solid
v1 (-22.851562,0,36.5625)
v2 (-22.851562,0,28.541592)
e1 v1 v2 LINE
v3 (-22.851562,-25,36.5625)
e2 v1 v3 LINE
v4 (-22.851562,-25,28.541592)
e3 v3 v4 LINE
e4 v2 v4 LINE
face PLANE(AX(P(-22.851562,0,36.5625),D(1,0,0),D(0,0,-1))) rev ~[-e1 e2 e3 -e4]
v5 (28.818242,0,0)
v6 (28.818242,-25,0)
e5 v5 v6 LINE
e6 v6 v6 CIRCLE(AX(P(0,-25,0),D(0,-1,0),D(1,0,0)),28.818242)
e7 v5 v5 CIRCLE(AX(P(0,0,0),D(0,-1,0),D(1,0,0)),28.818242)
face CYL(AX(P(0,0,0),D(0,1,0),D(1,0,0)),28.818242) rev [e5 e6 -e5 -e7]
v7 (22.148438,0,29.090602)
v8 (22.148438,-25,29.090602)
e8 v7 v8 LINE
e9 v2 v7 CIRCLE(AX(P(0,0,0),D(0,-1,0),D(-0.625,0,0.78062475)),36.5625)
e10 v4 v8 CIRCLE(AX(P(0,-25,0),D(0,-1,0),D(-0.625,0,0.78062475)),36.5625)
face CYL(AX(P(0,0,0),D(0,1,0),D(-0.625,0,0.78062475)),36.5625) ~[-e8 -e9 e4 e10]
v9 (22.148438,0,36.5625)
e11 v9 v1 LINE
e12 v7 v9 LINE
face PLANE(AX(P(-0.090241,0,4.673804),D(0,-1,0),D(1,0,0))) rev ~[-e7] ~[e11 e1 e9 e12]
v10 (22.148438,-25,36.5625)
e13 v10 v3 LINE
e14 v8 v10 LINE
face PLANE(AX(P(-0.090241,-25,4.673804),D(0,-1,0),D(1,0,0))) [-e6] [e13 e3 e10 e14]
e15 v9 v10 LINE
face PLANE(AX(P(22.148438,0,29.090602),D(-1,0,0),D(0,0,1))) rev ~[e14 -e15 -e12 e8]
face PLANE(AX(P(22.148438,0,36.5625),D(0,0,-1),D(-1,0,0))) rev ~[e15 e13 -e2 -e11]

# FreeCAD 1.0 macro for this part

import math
import FreeCAD as App
import Part
import Sketcher

V = App.Vector
Q = App.Units.Quantity

doc = App.newDocument("Part")
body = doc.addObject("PartDesign::Body", "Body")

sketch1 = body.newObject("Sketcher::SketchObject", "Sketch")
sketch1.AttachmentSupport = (doc.getObject("XZ_Plane"), [""])
sketch1.MapMode = "FlatFace"
sketch1.addGeometry(Part.LineSegment(V(22, 37, 0), V(-23, 37, 0)), False)
sketch1.addGeometry(Part.LineSegment(V(-23, 37, 0), V(-23, 29, 0)), False)
sketch1.addGeometry(Part.ArcOfCircle(Part.Circle(V(0, 0, 0), V(0, 0, 1), 37), math.radians(129), math.radians(413)), False)
sketch1.addGeometry(Part.LineSegment(V(22, 29, 0), V(22, 37, 0)), False)
sketch1.addGeometry(Part.Circle(V(0, 0, 0), V(0, 0, 1), 29), False)
sketch1.addConstraint(Sketcher.Constraint("Coincident", 0, 2, 1, 1))
sketch1.addConstraint(Sketcher.Constraint("Coincident", 1, 2, 2, 1))
sketch1.addConstraint(Sketcher.Constraint("Coincident", 2, 2, 3, 1))
sketch1.addConstraint(Sketcher.Constraint("Coincident", 3, 2, 0, 1))
sketch1.addConstraint(Sketcher.Constraint("Horizontal", 0))
sketch1.addConstraint(Sketcher.Constraint("Vertical", 1))
sketch1.addConstraint(Sketcher.Constraint("Vertical", 3))
sketch1.addConstraint(Sketcher.Constraint("Coincident", 2, 3, -1, 1))
sketch1.addConstraint(Sketcher.Constraint("Coincident", 4, 3, -1, 1))
sketch1.addConstraint(Sketcher.Constraint("DistanceX", 0, 2, 0, 1, Q("45 mm")))
sketch1.addConstraint(Sketcher.Constraint("Radius", 2, Q("36.5625 mm")))
sketch1.addConstraint(Sketcher.Constraint("Diameter", 4, Q("57.636483 mm")))
sketch1.addConstraint(Sketcher.Constraint("DistanceY", 3, 1, 3, 2, Q("7.471898 mm")))
sketch1.addConstraint(Sketcher.Constraint("DistanceY", -1, 1, 0, 2, Q("36.5625 mm")))
pad1 = body.newObject("PartDesign::Pad", "Pad")
pad1.Profile = sketch1
pad1.Length = 25

doc.recompute()
